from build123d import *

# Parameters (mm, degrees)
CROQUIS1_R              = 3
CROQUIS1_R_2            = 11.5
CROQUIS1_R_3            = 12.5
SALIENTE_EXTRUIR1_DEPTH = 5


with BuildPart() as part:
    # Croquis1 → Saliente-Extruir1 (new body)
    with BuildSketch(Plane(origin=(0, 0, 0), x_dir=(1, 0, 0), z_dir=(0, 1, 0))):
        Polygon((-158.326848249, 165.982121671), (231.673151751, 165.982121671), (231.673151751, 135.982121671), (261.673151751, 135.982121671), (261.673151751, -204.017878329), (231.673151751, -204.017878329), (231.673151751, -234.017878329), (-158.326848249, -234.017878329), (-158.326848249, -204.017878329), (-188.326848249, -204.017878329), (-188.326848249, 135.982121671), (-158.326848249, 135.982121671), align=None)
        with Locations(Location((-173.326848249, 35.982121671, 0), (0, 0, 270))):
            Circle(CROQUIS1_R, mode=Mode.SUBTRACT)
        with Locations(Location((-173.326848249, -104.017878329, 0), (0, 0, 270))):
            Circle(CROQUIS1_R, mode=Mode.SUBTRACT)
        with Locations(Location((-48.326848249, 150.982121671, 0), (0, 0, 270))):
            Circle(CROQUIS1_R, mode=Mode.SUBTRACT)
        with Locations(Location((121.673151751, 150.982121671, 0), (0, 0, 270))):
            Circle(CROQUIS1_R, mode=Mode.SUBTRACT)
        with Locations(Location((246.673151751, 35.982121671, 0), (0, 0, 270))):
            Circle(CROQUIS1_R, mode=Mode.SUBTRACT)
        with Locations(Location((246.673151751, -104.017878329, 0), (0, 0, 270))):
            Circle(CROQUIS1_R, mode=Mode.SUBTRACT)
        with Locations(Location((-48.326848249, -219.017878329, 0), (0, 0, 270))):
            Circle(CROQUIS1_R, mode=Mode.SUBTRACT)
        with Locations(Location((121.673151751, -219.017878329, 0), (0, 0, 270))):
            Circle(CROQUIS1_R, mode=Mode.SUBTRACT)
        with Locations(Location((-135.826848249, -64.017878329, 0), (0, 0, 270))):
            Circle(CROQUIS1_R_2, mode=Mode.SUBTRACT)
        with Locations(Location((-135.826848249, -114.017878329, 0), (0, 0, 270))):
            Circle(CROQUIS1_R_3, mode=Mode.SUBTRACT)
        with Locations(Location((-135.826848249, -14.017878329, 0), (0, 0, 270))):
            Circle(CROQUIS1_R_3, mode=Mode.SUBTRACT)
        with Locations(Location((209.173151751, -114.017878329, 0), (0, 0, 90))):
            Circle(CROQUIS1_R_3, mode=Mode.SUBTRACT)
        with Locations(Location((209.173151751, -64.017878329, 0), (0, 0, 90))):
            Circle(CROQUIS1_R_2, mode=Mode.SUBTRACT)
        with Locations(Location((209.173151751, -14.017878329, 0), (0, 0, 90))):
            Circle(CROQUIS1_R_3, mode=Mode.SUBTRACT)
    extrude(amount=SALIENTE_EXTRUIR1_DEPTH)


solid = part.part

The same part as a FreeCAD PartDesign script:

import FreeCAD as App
import Part
import Sketcher
from FreeCAD import Vector

doc = App.newDocument("Part")
body = doc.addObject("PartDesign::Body", "Body")

sketch1 = body.newObject("Sketcher::SketchObject", "Sketch")
sketch1.AttachmentSupport = (doc.getObject("XZ_Plane"), [""])
sketch1.MapMode = "FlatFace"
sketch1.addGeometry(Part.LineSegment(Vector(231.7, -166, 0), Vector(-158.3, -166, 0)), False)
sketch1.addGeometry(Part.LineSegment(Vector(-158.3, -166, 0), Vector(-158.3, -136, 0)), False)
sketch1.addGeometry(Part.LineSegment(Vector(-158.3, -136, 0), Vector(-188.3, -136, 0)), False)
sketch1.addGeometry(Part.LineSegment(Vector(-188.3, -136, 0), Vector(-188.3, 204, 0)), False)
sketch1.addGeometry(Part.LineSegment(Vector(-188.3, 204, 0), Vector(-158.3, 204, 0)), False)
sketch1.addGeometry(Part.LineSegment(Vector(-158.3, 204, 0), Vector(-158.3, 234, 0)), False)
sketch1.addGeometry(Part.LineSegment(Vector(-158.3, 234, 0), Vector(231.7, 234, 0)), False)
sketch1.addGeometry(Part.LineSegment(Vector(231.7, 234, 0), Vector(231.7, 204, 0)), False)
sketch1.addGeometry(Part.LineSegment(Vector(231.7, 204, 0), Vector(261.7, 204, 0)), False)
sketch1.addGeometry(Part.LineSegment(Vector(261.7, 204, 0), Vector(261.7, -136, 0)), False)
sketch1.addGeometry(Part.LineSegment(Vector(261.7, -136, 0), Vector(231.7, -136, 0)), False)
sketch1.addGeometry(Part.LineSegment(Vector(231.7, -136, 0), Vector(231.7, -166, 0)), False)
sketch1.addGeometry(Part.Circle(Vector(121.7, 219, 0), Vector(0, 0, 1), 3), False)
sketch1.addGeometry(Part.Circle(Vector(209.2, 114, 0), Vector(0, 0, 1), 12.5), False)
sketch1.addGeometry(Part.Circle(Vector(246.7, 104, 0), Vector(0, 0, 1), 3), False)
sketch1.addGeometry(Part.Circle(Vector(209.2, 64, 0), Vector(0, 0, 1), 11.5), False)
sketch1.addGeometry(Part.Circle(Vector(-48.3, 219, 0), Vector(0, 0, 1), 3), False)
sketch1.addGeometry(Part.Circle(Vector(-135.8, 114, 0), Vector(0, 0, 1), 12.5), False)
sketch1.addGeometry(Part.Circle(Vector(-173.3, 104, 0), Vector(0, 0, 1), 3), False)
sketch1.addGeometry(Part.Circle(Vector(-135.8, 64, 0), Vector(0, 0, 1), 11.5), False)
sketch1.addGeometry(Part.Circle(Vector(209.2, 14, 0), Vector(0, 0, 1), 12.5), False)
sketch1.addGeometry(Part.Circle(Vector(246.7, -36, 0), Vector(0, 0, 1), 3), False)
sketch1.addGeometry(Part.Circle(Vector(121.7, -151, 0), Vector(0, 0, 1), 3), False)
sketch1.addGeometry(Part.Circle(Vector(-135.8, 14, 0), Vector(0, 0, 1), 12.5), False)
sketch1.addGeometry(Part.Circle(Vector(-173.3, -36, 0), Vector(0, 0, 1), 3), False)
sketch1.addGeometry(Part.Circle(Vector(-48.3, -151, 0), Vector(0, 0, 1), 3), False)
sketch1.addConstraint(Sketcher.Constraint("Coincident", 0, 2, 1, 1))
sketch1.addConstraint(Sketcher.Constraint("Coincident", 1, 2, 2, 1))
sketch1.addConstraint(Sketcher.Constraint("Coincident", 2, 2, 3, 1))
sketch1.addConstraint(Sketcher.Constraint("Coincident", 3, 2, 4, 1))
sketch1.addConstraint(Sketcher.Constraint("Coincident", 4, 2, 5, 1))
sketch1.addConstraint(Sketcher.Constraint("Coincident", 5, 2, 6, 1))
sketch1.addConstraint(Sketcher.Constraint("Coincident", 6, 2, 7, 1))
sketch1.addConstraint(Sketcher.Constraint("Coincident", 7, 2, 8, 1))
sketch1.addConstraint(Sketcher.Constraint("Coincident", 8, 2, 9, 1))
sketch1.addConstraint(Sketcher.Constraint("Coincident", 9, 2, 10, 1))
sketch1.addConstraint(Sketcher.Constraint("Coincident", 10, 2, 11, 1))
sketch1.addConstraint(Sketcher.Constraint("Coincident", 11, 2, 0, 1))
sketch1.addConstraint(Sketcher.Constraint("Horizontal", 0))
sketch1.addConstraint(Sketcher.Constraint("Vertical", 1))
sketch1.addConstraint(Sketcher.Constraint("Horizontal", 2))
sketch1.addConstraint(Sketcher.Constraint("Vertical", 3))
sketch1.addConstraint(Sketcher.Constraint("Horizontal", 4))
sketch1.addConstraint(Sketcher.Constraint("Vertical", 5))
sketch1.addConstraint(Sketcher.Constraint("Horizontal", 6))
sketch1.addConstraint(Sketcher.Constraint("Vertical", 7))
sketch1.addConstraint(Sketcher.Constraint("Horizontal", 8))
sketch1.addConstraint(Sketcher.Constraint("Vertical", 9))
sketch1.addConstraint(Sketcher.Constraint("Horizontal", 10))
sketch1.addConstraint(Sketcher.Constraint("Vertical", 11))
sketch1.addConstraint(Sketcher.Constraint("Equal", 12, 14))
sketch1.addConstraint(Sketcher.Constraint("Equal", 14, 16))
sketch1.addConstraint(Sketcher.Constraint("Equal", 13, 17))
sketch1.addConstraint(Sketcher.Constraint("Equal", 16, 18))
sketch1.addConstraint(Sketcher.Constraint("Equal", 15, 19))
sketch1.addConstraint(Sketcher.Constraint("Equal", 17, 20))
sketch1.addConstraint(Sketcher.Constraint("Equal", 18, 21))
sketch1.addConstraint(Sketcher.Constraint("Equal", 21, 22))
sketch1.addConstraint(Sketcher.Constraint("Equal", 20, 23))
sketch1.addConstraint(Sketcher.Constraint("Equal", 22, 24))
sketch1.addConstraint(Sketcher.Constraint("Equal", 24, 25))
sketch1.addConstraint(Sketcher.Constraint("Horizontal", 12, 3, 16, 3))
sketch1.addConstraint(Sketcher.Constraint("Horizontal", 13, 3, 17, 3))
sketch1.addConstraint(Sketcher.Constraint("Horizontal", 14, 3, 18, 3))
sketch1.addConstraint(Sketcher.Constraint("Horizontal", 15, 3, 19, 3))
sketch1.addConstraint(Sketcher.Constraint("Horizontal", 20, 3, 23, 3))
sketch1.addConstraint(Sketcher.Constraint("Horizontal", 21, 3, 24, 3))
sketch1.addConstraint(Sketcher.Constraint("Horizontal", 22, 3, 25, 3))
sketch1.addConstraint(Sketcher.Constraint("Horizontal", 4, 2, 7, 2))
sketch1.addConstraint(Sketcher.Constraint("Horizontal", 2, 2, 9, 2))
sketch1.addConstraint(Sketcher.Constraint("Vertical", 13, 3, 15, 3))
sketch1.addConstraint(Sketcher.Constraint("Vertical", 17, 3, 19, 3))
sketch1.addConstraint(Sketcher.Constraint("Vertical", 15, 3, 20, 3))
sketch1.addConstraint(Sketcher.Constraint("Vertical", 14, 3, 21, 3))
sketch1.addConstraint(Sketcher.Constraint("Vertical", 12, 3, 22, 3))
sketch1.addConstraint(Sketcher.Constraint("Vertical", 19, 3, 23, 3))
sketch1.addConstraint(Sketcher.Constraint("Vertical", 18, 3, 24, 3))
sketch1.addConstraint(Sketcher.Constraint("Vertical", 16, 3, 25, 3))
sketch1.addConstraint(Sketcher.Constraint("Vertical", 1, 2, 4, 2))
sketch1.addConstraint(Sketcher.Constraint("Vertical", 7, 2, 10, 2))
sketch1.addConstraint(Sketcher.Constraint("Equal", 4, 8))
sketch1.addConstraint(Sketcher.Constraint("Equal", 10, 1))
sketch1.addConstraint(Sketcher.Constraint("Equal", 1, 5))
sketch1.addConstraint(Sketcher.Constraint("Diameter", 12, 6.0))
sketch1.addConstraint(Sketcher.Constraint("Diameter", 13, 25.0))
sketch1.addConstraint(Sketcher.Constraint("Diameter", 15, 23.0))
sketch1.addConstraint(Sketcher.Constraint("DistanceX", 0, 2, 0, 1, 390.0))
sketch1.addConstraint(Sketcher.Constraint("DistanceX", 2, 2, 2, 1, 30.0))
sketch1.addConstraint(Sketcher.Constraint("DistanceY", 3, 1, 3, 2, 340.0))
sketch1.addConstraint(Sketcher.Constraint("DistanceY", 13, 3, 12, 3, 105.0))
sketch1.addConstraint(Sketcher.Constraint("DistanceY", 14, 3, 13, 3, 10.0))
sketch1.addConstraint(Sketcher.Constraint("DistanceX", 12, 3, 14, 3, 125.0))
sketch1.addConstraint(Sketcher.Constraint("DistanceY", 15, 3, 13, 3, 50.0))
sketch1.addConstraint(Sketcher.Constraint("DistanceX", 16, 3, 12, 3, 170.0))
sketch1.addConstraint(Sketcher.Constraint("DistanceX", 17, 3, 13, 3, 345.0))
sketch1.addConstraint(Sketcher.Constraint("DistanceX", 18, 3, 16, 3, 125.0))
sketch1.addConstraint(Sketcher.Constraint("DistanceY", 20, 3, 15, 3, 50.0))
sketch1.addConstraint(Sketcher.Constraint("DistanceY", 21, 3, 20, 3, 50.0))
sketch1.addConstraint(Sketcher.Constraint("DistanceY", 22, 3, 21, 3, 115.0))
sketch1.addConstraint(Sketcher.Constraint("DistanceX", 0, 2, 25, 3, 110.0))
sketch1.addConstraint(Sketcher.Constraint("DistanceY", 0, 2, 25, 3, 15.0))
sketch1.addConstraint(Sketcher.Constraint("DistanceX", 12, 3, 13, 3, 87.5))
sketch1.addConstraint(Sketcher.Constraint("DistanceX", -1, 1, 12, 3, 121.673152))
sketch1.addConstraint(Sketcher.Constraint("DistanceY", -1, 1, 12, 3, 219.017878))
pad1 = body.newObject("PartDesign::Pad", "Pad")
pad1.Profile = sketch1
pad1.Length = 5
pad1.Reversed = True

doc.recompute()
